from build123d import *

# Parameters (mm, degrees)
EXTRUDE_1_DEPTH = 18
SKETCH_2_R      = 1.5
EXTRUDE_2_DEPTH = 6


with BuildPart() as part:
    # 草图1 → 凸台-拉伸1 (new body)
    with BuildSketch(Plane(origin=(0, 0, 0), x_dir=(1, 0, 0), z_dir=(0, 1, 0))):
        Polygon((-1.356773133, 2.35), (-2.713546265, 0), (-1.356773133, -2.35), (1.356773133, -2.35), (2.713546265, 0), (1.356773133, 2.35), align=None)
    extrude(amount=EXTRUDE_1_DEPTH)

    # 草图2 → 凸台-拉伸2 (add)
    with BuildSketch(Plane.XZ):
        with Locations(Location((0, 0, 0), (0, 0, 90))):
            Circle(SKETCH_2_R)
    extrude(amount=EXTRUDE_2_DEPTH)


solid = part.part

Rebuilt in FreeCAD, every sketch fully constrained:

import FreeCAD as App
import Part
import Sketcher
from FreeCAD import Vector
Q = App.Units.Quantity

doc = App.newDocument("Part")
body = doc.addObject("PartDesign::Body", "Body")

# Sketch on XZ plane
sketch1 = body.newObject("Sketcher::SketchObject", "Sketch")
sketch1.AttachmentSupport = (doc.getObject("XZ_Plane"), [""])
sketch1.MapMode = "FlatFace"
sketch1.addGeometry(Part.LineSegment(Vector(-1.4, -2.4, 0), Vector(-2.7, 0, 0)), False)
sketch1.addGeometry(Part.LineSegment(Vector(-2.7, 0, 0), Vector(-1.4, 2.4, 0)), False)
sketch1.addGeometry(Part.LineSegment(Vector(-1.4, 2.4, 0), Vector(1.4, 2.4, 0)), False)
sketch1.addGeometry(Part.LineSegment(Vector(1.4, 2.4, 0), Vector(2.7, 0, 0)), False)
sketch1.addGeometry(Part.LineSegment(Vector(2.7, 0, 0), Vector(1.4, -2.4, 0)), False)
sketch1.addGeometry(Part.LineSegment(Vector(1.4, -2.4, 0), Vector(-1.4, -2.4, 0)), False)
sketch1.addConstraint(Sketcher.Constraint("Coincident", 0, 2, 1, 1))
sketch1.addConstraint(Sketcher.Constraint("Coincident", 1, 2, 2, 1))
sketch1.addConstraint(Sketcher.Constraint("Coincident", 2, 2, 3, 1))
sketch1.addConstraint(Sketcher.Constraint("Coincident", 3, 2, 4, 1))
sketch1.addConstraint(Sketcher.Constraint("Coincident", 4, 2, 5, 1))
sketch1.addConstraint(Sketcher.Constraint("Coincident", 5, 2, 0, 1))
sketch1.addConstraint(Sketcher.Constraint("Horizontal", 2))
sketch1.addConstraint(Sketcher.Constraint("Horizontal", 5))
sketch1.addConstraint(Sketcher.Constraint("Symmetric", 0, 2, 3, 2, -1, 1))
sketch1.addConstraint(Sketcher.Constraint("Symmetric", 1, 2, 4, 2, -1, 1))
sketch1.addConstraint(Sketcher.Constraint("PointOnObject", 0, 2, -1))
sketch1.addConstraint(Sketcher.Constraint("Parallel", 0, 3))
sketch1.addConstraint(Sketcher.Constraint("Vertical", 2, 2, 4, 2))
sketch1.addConstraint(Sketcher.Constraint("Angle", 0, Q("120 deg")))
sketch1.addConstraint(Sketcher.Constraint("DistanceY", 4, 2, 2, 2, Q("4.7 mm")))
sketch1.addConstraint(Sketcher.Constraint("DistanceX", 2, 1, 2, 2, Q("2.713546 mm")))
pad1 = body.newObject("PartDesign::Pad", "Pad")
pad1.Profile = sketch1
pad1.Length = 18
pad1.Reversed = True

# Sketch on XZ plane
sketch2 = body.newObject("Sketcher::SketchObject", "Sketch001")
sketch2.AttachmentSupport = (doc.getObject("XZ_Plane"), [""])
sketch2.MapMode = "FlatFace"
sketch2.addGeometry(Part.Circle(Vector(0, 0, 0), Vector(0, 0, 1), 1.5), False)
sketch2.addConstraint(Sketcher.Constraint("Coincident", 0, 3, -1, 1))
sketch2.addConstraint(Sketcher.Constraint("Diameter", 0, Q("3 mm")))
pad2 = body.newObject("PartDesign::Pad", "Pad001")
pad2.Profile = sketch2
pad2.Length = 6

doc.recompute()
